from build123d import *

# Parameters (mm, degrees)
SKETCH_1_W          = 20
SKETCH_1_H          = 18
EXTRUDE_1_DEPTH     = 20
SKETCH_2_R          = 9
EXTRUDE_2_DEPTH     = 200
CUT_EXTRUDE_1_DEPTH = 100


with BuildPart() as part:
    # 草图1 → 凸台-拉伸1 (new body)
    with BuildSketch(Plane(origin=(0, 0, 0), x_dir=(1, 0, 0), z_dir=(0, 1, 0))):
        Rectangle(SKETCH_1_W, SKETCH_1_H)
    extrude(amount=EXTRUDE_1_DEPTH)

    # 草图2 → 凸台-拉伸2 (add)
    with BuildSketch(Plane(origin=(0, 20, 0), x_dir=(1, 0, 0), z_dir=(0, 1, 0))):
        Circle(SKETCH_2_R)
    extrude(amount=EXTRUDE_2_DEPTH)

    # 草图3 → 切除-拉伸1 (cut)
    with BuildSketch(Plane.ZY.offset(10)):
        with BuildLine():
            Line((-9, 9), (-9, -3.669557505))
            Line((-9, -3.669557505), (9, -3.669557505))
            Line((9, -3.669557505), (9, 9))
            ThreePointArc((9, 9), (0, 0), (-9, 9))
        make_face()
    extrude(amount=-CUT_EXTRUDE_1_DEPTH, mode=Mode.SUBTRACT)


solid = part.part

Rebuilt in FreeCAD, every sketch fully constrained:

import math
import FreeCAD as App
import Part
import Sketcher

doc = App.newDocument("Part")
params = doc.addObject("Spreadsheet::Sheet", "Params")
for row, (alias, value) in enumerate([
    ("sketch1_width", "20 mm"),
    ("sketch1_height", "18 mm"),
    ("pad1_length", "20 mm"),
    ("sketch2_diameter", "18 mm"),
    ("pad2_length", "200 mm"),
    ("sketch3_radius", "9 mm"),
    ("pocket1_length", "100 mm"),
], start=1):
    params.set(f"A{row}", alias)
    params.set(f"B{row}", "=" + value)
    params.setAlias(f"B{row}", alias)

body = doc.addObject("PartDesign::Body", "Body")

sketch1 = body.newObject("Sketcher::SketchObject", "Sketch")
sketch1.AttachmentSupport = (doc.getObject("XZ_Plane"), [""])
sketch1.MapMode = "FlatFace"
sketch1.addGeometry([
    Part.LineSegment(App.Vector(-10, -9, 0), App.Vector(-10, 9, 0)),
    Part.LineSegment(App.Vector(-10, 9, 0), App.Vector(10, 9, 0)),
    Part.LineSegment(App.Vector(10, 9, 0), App.Vector(10, -9, 0)),
    Part.LineSegment(App.Vector(10, -9, 0), App.Vector(-10, -9, 0)),
], False)
sketch1.addConstraint([
    Sketcher.Constraint("Coincident", 0, 2, 1, 1),
    Sketcher.Constraint("Coincident", 1, 2, 2, 1),
    Sketcher.Constraint("Coincident", 2, 2, 3, 1),
    Sketcher.Constraint("Coincident", 3, 2, 0, 1),
    Sketcher.Constraint("Vertical", 0),
    Sketcher.Constraint("Horizontal", 1),
    Sketcher.Constraint("Vertical", 2),
    Sketcher.Constraint("Horizontal", 3),
    Sketcher.Constraint("Symmetric", 0, 2, 2, 2, -1, 1),
    Sketcher.Constraint("DistanceX", 1, 1, 1, 2, 20.0),
    Sketcher.Constraint("DistanceY", 0, 1, 0, 2, 18.0),
])
sketch1.setExpression("Constraints[9]", "Params.sketch1_width")
sketch1.setExpression("Constraints[10]", "Params.sketch1_height")
pad1 = body.newObject("PartDesign::Pad", "Pad")
pad1.Profile = sketch1
pad1.setExpression("Length", "Params.pad1_length")
pad1.Reversed = True

sketch2 = body.newObject("Sketcher::SketchObject", "Sketch001")
sketch2.AttachmentSupport = (doc.getObject("XZ_Plane"), [""])
sketch2.MapMode = "FlatFace"
sketch2.AttachmentOffset = App.Placement(App.Vector(0, 0, -20), App.Rotation())
sketch2.addGeometry(Part.Circle(App.Vector(0, 0, 0), App.Vector(0, 0, 1), 9), False)
sketch2.addConstraint([
    Sketcher.Constraint("Coincident", 0, 3, -1, 1),
    Sketcher.Constraint("Diameter", 0, 18.0),
])
sketch2.setExpression("Constraints[1]", "Params.sketch2_diameter")
pad2 = body.newObject("PartDesign::Pad", "Pad001")
pad2.Profile = sketch2
pad2.setExpression("Length", "Params.pad2_length")
pad2.Reversed = True

sketch3 = body.newObject("Sketcher::SketchObject", "Sketch002")
sketch3.AttachmentSupport = (doc.getObject("YZ_Plane"), [""])
sketch3.MapMode = "FlatFace"
sketch3.AttachmentOffset = App.Placement(App.Vector(0, 0, -10), App.Rotation())
sketch3.addGeometry([
    Part.LineSegment(App.Vector(9, -9, 0), App.Vector(-4, -9, 0)),
    Part.LineSegment(App.Vector(-4, -9, 0), App.Vector(-4, 9, 0)),
    Part.LineSegment(App.Vector(-4, 9, 0), App.Vector(9, 9, 0)),
    Part.ArcOfCircle(Part.Circle(App.Vector(9, 0, 0), App.Vector(0, 0, 1), 9), math.radians(90), math.radians(270)),
], False)
sketch3.addConstraint([
    Sketcher.Constraint("Coincident", 0, 2, 1, 1),
    Sketcher.Constraint("Coincident", 1, 2, 2, 1),
    Sketcher.Constraint("Tangent", 2, 2, 3, 1),
    Sketcher.Constraint("Tangent", 3, 2, 0, 1),
    Sketcher.Constraint("Horizontal", 0),
    Sketcher.Constraint("Vertical", 1),
    Sketcher.Constraint("Horizontal", 2),
    Sketcher.Constraint("PointOnObject", 3, 3, -1),
    Sketcher.Constraint("Radius", 3, 9.0),
    Sketcher.Constraint("DistanceX", -1, 1, 3, 3, 9.0),
    Sketcher.Constraint("DistanceX", 0, 2, 0, 1, 12.669558),
])
sketch3.setExpression("Constraints[8]", "Params.sketch3_radius")
pocket1 = body.newObject("PartDesign::Pocket", "Pocket")
pocket1.Profile = sketch3
pocket1.setExpression("Length", "Params.pocket1_length")
pocket1.Reversed = True

doc.recompute()
